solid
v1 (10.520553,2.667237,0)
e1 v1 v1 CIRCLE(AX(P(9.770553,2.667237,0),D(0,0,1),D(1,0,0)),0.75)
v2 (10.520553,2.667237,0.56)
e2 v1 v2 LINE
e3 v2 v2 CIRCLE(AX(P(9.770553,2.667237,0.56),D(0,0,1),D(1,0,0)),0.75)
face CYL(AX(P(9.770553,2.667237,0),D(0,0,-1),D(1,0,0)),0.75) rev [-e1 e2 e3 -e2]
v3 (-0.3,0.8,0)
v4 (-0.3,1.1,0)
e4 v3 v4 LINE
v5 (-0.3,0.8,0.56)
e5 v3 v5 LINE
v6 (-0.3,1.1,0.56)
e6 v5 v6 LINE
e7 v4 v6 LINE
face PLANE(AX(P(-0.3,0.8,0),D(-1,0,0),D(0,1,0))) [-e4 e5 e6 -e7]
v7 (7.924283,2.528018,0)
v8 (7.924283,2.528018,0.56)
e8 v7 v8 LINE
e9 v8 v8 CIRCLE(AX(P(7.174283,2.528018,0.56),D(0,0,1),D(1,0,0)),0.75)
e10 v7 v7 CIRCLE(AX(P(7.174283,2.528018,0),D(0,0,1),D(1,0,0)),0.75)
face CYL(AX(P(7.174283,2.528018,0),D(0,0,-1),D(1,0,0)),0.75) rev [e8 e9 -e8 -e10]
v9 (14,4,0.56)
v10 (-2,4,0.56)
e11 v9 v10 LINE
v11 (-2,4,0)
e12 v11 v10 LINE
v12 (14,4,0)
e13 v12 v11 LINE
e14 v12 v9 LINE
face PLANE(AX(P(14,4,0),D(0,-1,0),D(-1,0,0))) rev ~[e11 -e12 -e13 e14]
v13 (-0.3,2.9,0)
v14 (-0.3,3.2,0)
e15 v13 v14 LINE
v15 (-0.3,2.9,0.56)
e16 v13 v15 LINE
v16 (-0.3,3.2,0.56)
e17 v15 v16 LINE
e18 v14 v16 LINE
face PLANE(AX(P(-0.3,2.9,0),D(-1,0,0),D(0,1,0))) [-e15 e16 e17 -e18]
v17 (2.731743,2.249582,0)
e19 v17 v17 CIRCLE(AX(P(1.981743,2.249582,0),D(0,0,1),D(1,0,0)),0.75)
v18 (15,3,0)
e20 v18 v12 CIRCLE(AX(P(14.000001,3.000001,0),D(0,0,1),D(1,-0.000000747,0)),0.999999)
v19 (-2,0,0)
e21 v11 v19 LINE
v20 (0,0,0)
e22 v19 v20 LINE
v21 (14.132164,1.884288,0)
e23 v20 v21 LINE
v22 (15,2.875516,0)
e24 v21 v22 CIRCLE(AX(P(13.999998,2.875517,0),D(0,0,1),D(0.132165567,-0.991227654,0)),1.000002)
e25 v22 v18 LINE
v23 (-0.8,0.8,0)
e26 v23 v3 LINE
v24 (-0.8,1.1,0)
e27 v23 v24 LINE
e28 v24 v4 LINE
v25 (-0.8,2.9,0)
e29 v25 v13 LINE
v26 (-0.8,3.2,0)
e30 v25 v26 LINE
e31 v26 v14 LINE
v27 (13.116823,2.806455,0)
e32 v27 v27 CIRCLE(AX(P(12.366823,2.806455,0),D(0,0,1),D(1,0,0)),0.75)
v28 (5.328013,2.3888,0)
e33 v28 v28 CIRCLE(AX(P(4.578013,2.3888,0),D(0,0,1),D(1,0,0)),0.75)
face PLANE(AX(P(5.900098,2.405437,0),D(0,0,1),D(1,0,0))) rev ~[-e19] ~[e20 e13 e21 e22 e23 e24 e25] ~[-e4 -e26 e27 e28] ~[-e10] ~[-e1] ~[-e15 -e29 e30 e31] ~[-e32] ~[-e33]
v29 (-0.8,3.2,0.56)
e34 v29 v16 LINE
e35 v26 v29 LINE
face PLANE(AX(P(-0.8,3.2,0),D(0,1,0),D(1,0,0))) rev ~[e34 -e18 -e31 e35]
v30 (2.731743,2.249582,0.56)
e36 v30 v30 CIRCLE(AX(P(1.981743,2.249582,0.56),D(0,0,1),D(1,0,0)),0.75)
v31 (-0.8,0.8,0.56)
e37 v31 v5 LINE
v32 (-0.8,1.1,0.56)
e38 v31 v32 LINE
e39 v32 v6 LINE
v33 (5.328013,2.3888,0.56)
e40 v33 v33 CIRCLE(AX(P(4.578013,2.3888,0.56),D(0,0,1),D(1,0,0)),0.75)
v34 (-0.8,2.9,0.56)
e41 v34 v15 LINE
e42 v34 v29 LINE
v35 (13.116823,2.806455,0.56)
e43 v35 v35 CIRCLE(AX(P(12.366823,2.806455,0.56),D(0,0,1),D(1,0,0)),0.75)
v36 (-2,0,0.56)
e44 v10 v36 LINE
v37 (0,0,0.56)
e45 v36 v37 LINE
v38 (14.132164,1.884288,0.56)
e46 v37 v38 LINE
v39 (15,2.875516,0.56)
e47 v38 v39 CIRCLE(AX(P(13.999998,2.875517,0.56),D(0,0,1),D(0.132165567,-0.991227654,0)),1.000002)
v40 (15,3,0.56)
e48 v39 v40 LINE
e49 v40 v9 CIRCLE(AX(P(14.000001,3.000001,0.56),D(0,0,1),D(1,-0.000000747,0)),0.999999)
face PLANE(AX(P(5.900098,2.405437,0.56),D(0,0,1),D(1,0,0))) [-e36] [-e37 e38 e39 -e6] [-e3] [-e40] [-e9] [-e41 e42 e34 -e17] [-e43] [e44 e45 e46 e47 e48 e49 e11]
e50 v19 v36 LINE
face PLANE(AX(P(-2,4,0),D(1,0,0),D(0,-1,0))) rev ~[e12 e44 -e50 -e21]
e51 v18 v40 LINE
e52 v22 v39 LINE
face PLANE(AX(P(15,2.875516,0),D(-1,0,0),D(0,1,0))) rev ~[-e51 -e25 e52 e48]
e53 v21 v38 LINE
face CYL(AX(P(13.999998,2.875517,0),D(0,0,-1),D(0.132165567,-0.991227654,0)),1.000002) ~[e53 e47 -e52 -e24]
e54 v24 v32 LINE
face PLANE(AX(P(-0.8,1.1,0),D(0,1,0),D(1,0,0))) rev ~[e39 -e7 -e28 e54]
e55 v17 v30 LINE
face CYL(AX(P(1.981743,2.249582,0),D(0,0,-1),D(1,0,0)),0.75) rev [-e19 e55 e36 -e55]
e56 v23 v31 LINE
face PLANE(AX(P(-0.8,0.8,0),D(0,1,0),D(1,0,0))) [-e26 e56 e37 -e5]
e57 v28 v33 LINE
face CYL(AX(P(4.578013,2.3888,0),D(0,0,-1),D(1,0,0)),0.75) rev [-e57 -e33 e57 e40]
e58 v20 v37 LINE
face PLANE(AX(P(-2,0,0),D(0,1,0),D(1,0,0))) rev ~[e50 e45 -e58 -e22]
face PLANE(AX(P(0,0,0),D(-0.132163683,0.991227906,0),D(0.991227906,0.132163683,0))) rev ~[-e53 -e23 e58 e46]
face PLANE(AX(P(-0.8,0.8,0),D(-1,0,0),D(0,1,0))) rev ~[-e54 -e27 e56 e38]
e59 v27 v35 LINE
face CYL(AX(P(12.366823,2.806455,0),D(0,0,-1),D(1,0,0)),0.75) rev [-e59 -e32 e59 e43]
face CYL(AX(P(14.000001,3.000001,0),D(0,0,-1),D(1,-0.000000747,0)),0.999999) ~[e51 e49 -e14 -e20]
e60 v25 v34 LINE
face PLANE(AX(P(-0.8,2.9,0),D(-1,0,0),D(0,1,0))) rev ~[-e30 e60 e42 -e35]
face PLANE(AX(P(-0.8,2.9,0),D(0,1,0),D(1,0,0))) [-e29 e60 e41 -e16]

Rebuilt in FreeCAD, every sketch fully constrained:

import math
import FreeCAD as App
import Part
import Sketcher
from FreeCAD import Vector

doc = App.newDocument("Part")
body = doc.addObject("PartDesign::Body", "Body")

# Sketch on XY plane
sketch1 = doc.addObject("Sketcher::SketchObject", "Sketch")
body.addObject(sketch1)
sketch1.AttachmentSupport = (doc.XY_Plane, [""])
sketch1.MapMode = "FlatFace"
sketch1.addGeometry(Part.LineSegment(Vector(14, 4, 0), Vector(-2, 4, 0)), False)
sketch1.addGeometry(Part.LineSegment(Vector(-2, 4, 0), Vector(-2, 0, 0)), False)
sketch1.addGeometry(Part.LineSegment(Vector(-2, 0, 0), Vector(0, 0, 0)), False)
sketch1.addGeometry(Part.LineSegment(Vector(0, 0, 0), Vector(14.132164, 1.884288, 0)), False)
sketch1.addGeometry(Part.ArcOfCircle(Part.Circle(Vector(13.999998, 2.875517, 0), Vector(0, 0, 1), 1.000002), math.radians(-82.40525), math.radians(-0.000083)), False)
sketch1.addGeometry(Part.LineSegment(Vector(15, 2.875516, 0), Vector(15, 3, 0)), False)
sketch1.addGeometry(Part.ArcOfCircle(Part.Circle(Vector(14.000001, 3.000001, 0), Vector(0, 0, 1), 0.999999), math.radians(-0.000043), math.radians(90.000043)), False)
sketch1.addGeometry(Part.LineSegment(Vector(-0.3, 0.8, 0), Vector(-0.8, 0.8, 0)), False)
sketch1.addGeometry(Part.LineSegment(Vector(-0.8, 0.8, 0), Vector(-0.8, 1.1, 0)), False)
sketch1.addGeometry(Part.LineSegment(Vector(-0.8, 1.1, 0), Vector(-0.3, 1.1, 0)), False)
sketch1.addGeometry(Part.LineSegment(Vector(-0.3, 1.1, 0), Vector(-0.3, 0.8, 0)), False)
sketch1.addGeometry(Part.Circle(Vector(1.981743, 2.249582, 0), Vector(0, 0, 1), 0.75), False)
sketch1.addGeometry(Part.Circle(Vector(4.578013, 2.3888, 0), Vector(0, 0, 1), 0.75), False)
sketch1.addGeometry(Part.LineSegment(Vector(-0.3, 2.9, 0), Vector(-0.8, 2.9, 0)), False)
sketch1.addGeometry(Part.LineSegment(Vector(-0.8, 2.9, 0), Vector(-0.8, 3.2, 0)), False)
sketch1.addGeometry(Part.LineSegment(Vector(-0.8, 3.2, 0), Vector(-0.3, 3.2, 0)), False)
sketch1.addGeometry(Part.LineSegment(Vector(-0.3, 3.2, 0), Vector(-0.3, 2.9, 0)), False)
sketch1.addGeometry(Part.Circle(Vector(7.174283, 2.528018, 0), Vector(0, 0, 1), 0.75), False)
sketch1.addGeometry(Part.Circle(Vector(9.770553, 2.667237, 0), Vector(0, 0, 1), 0.75), False)
sketch1.addGeometry(Part.Circle(Vector(12.366823, 2.806455, 0), Vector(0, 0, 1), 0.75), False)
sketch1.addConstraint(Sketcher.Constraint("Coincident", 0, 2, 1, 1))
sketch1.addConstraint(Sketcher.Constraint("Coincident", 1, 2, 2, 1))
sketch1.addConstraint(Sketcher.Constraint("Coincident", 2, 2, 3, 1))
sketch1.addConstraint(Sketcher.Constraint("Tangent", 3, 2, 4, 1))
sketch1.addConstraint(Sketcher.Constraint("Tangent", 4, 2, 5, 1))
sketch1.addConstraint(Sketcher.Constraint("Tangent", 5, 2, 6, 1))
sketch1.addConstraint(Sketcher.Constraint("Tangent", 6, 2, 0, 1))
sketch1.addConstraint(Sketcher.Constraint("Coincident", 7, 2, 8, 1))
sketch1.addConstraint(Sketcher.Constraint("Coincident", 8, 2, 9, 1))
sketch1.addConstraint(Sketcher.Constraint("Coincident", 9, 2, 10, 1))
sketch1.addConstraint(Sketcher.Constraint("Coincident", 10, 2, 7, 1))
sketch1.addConstraint(Sketcher.Constraint("Coincident", 13, 2, 14, 1))
sketch1.addConstraint(Sketcher.Constraint("Coincident", 14, 2, 15, 1))
sketch1.addConstraint(Sketcher.Constraint("Coincident", 15, 2, 16, 1))
sketch1.addConstraint(Sketcher.Constraint("Coincident", 16, 2, 13, 1))
sketch1.addConstraint(Sketcher.Constraint("Horizontal", 0))
sketch1.addConstraint(Sketcher.Constraint("Vertical", 1))
sketch1.addConstraint(Sketcher.Constraint("Horizontal", 2))
sketch1.addConstraint(Sketcher.Constraint("Vertical", 5))
sketch1.addConstraint(Sketcher.Constraint("Horizontal", 7))
sketch1.addConstraint(Sketcher.Constraint("Vertical", 8))
sketch1.addConstraint(Sketcher.Constraint("Horizontal", 9))
sketch1.addConstraint(Sketcher.Constraint("Vertical", 10))
sketch1.addConstraint(Sketcher.Constraint("Horizontal", 13))
sketch1.addConstraint(Sketcher.Constraint("Vertical", 14))
sketch1.addConstraint(Sketcher.Constraint("Horizontal", 15))
sketch1.addConstraint(Sketcher.Constraint("Vertical", 16))
sketch1.addConstraint(Sketcher.Constraint("Coincident", 2, 2, -1, 1))
sketch1.addConstraint(Sketcher.Constraint("Equal", 11, 12))
sketch1.addConstraint(Sketcher.Constraint("Equal", 12, 17))
sketch1.addConstraint(Sketcher.Constraint("Equal", 17, 18))
sketch1.addConstraint(Sketcher.Constraint("Equal", 18, 19))
sketch1.addConstraint(Sketcher.Constraint("Vertical", 4, 3, 6, 2))
sketch1.addConstraint(Sketcher.Constraint("Vertical", 8, 2, 13, 2))
sketch1.addConstraint(Sketcher.Constraint("Vertical", 10, 2, 15, 2))
sketch1.addConstraint(Sketcher.Constraint("Equal", 10, 14))
sketch1.addConstraint(Sketcher.Constraint("Radius", 4, 1.000002))
sketch1.addConstraint(Sketcher.Constraint("Diameter", 11, 1.5))
sketch1.addConstraint(Sketcher.Constraint("DistanceX", 0, 2, 0, 1, 16.0))
sketch1.addConstraint(Sketcher.Constraint("DistanceX", 2, 1, 2, 2, 2.0))
sketch1.addConstraint(Sketcher.Constraint("DistanceY", 1, 2, 1, 1, 4.0))
sketch1.addConstraint(Sketcher.Constraint("DistanceX", 7, 2, 7, 1, 0.5))
sketch1.addConstraint(Sketcher.Constraint("DistanceY", 8, 1, 8, 2, 0.3))
sketch1.addConstraint(Sketcher.Constraint("DistanceX", 7, 2, -1, 1, 0.8))
sketch1.addConstraint(Sketcher.Constraint("DistanceY", -1, 1, 7, 2, 0.8))
sketch1.addConstraint(Sketcher.Constraint("DistanceY", -1, 1, 13, 2, 2.9))
sketch1.addConstraint(Sketcher.Constraint("DistanceY", -1, 1, 12, 3, 2.3888))
sketch1.addConstraint(Sketcher.Constraint("DistanceY", 17, 3, 4, 3, 0.347499))
sketch1.addConstraint(Sketcher.Constraint("Distance", 3, 14.25723))
sketch1.addConstraint(Sketcher.Constraint("DistanceY", 11, 3, 6, 3, 0.750419))
sketch1.addConstraint(Sketcher.Constraint("DistanceX", 11, 3, 12, 3, 2.59627))
sketch1.addConstraint(Sketcher.Constraint("DistanceX", 12, 3, 17, 3, 2.59627))
sketch1.addConstraint(Sketcher.Constraint("DistanceX", 17, 3, 18, 3, 2.59627))
sketch1.addConstraint(Sketcher.Constraint("DistanceY", 17, 3, 18, 3, 0.139219))
sketch1.addConstraint(Sketcher.Constraint("DistanceX", 18, 3, 19, 3, 2.59627))
sketch1.addConstraint(Sketcher.Constraint("DistanceY", 18, 3, 19, 3, 0.139218))
sketch1.addConstraint(Sketcher.Constraint("DistanceX", 19, 3, 3, 2, 1.765341))
pad1 = doc.addObject("PartDesign::Pad", "Pad")
body.addObject(pad1)
pad1.Profile = sketch1
pad1.Length = 0.56

doc.recompute()
